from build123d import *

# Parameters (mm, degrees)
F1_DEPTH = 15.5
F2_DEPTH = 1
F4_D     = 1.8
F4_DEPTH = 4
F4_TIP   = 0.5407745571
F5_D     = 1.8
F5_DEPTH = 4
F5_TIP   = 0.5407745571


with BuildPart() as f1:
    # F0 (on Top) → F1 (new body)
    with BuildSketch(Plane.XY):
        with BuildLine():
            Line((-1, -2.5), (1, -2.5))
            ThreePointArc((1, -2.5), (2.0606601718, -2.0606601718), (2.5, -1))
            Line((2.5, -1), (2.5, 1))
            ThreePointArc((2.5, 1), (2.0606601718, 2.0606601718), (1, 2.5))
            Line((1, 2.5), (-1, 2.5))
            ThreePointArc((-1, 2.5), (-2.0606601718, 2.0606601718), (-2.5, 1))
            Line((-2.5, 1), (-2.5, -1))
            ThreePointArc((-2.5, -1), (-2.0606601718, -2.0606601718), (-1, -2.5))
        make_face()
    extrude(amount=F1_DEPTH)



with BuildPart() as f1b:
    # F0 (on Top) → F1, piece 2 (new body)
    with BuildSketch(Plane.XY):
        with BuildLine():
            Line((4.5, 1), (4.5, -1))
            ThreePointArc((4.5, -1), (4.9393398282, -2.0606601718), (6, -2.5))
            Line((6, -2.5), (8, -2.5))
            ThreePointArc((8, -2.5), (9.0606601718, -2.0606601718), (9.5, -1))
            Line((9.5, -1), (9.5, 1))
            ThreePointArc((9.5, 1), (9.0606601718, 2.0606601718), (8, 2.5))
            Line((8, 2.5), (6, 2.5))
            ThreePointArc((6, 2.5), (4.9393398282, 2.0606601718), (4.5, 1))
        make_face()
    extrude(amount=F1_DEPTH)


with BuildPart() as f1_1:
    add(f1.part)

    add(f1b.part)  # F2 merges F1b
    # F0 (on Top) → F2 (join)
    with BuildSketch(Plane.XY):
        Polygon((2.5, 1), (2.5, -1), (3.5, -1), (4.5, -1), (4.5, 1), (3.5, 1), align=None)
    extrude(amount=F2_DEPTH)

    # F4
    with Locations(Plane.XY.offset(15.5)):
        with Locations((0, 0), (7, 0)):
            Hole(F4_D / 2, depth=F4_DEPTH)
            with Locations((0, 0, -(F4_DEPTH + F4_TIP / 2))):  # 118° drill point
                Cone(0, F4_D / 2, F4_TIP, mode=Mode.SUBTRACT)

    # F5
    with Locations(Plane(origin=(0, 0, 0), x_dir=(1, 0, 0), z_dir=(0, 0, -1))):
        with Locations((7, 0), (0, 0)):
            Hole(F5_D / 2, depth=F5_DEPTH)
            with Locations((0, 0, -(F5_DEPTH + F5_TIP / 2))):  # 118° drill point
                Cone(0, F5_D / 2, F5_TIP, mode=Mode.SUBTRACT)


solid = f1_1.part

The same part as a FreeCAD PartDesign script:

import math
import FreeCAD as App
import Part
import Sketcher

V = App.Vector


def add_polygon(sketch, points):
    """Adds a closed chain of lines whose ends are joined by coincident constraints."""
    first, n = sketch.GeometryCount, len(points)
    for a, b in zip(points, points[1:] + points[:1]):
        sketch.addGeometry(Part.LineSegment(App.Vector(*a, 0), App.Vector(*b, 0)), False)
    for i in range(n):
        sketch.addConstraint(Sketcher.Constraint("Coincident", first + i, 2, first + (i + 1) % n, 1))

doc = App.newDocument("Part")
body = doc.addObject("PartDesign::Body", "Body")

sketch1 = body.newObject("Sketcher::SketchObject", "Sketch")
sketch1.AttachmentSupport = (doc.getObject("XY_Plane"), [""])
sketch1.MapMode = "FlatFace"
sketch1.addGeometry([
    Part.LineSegment(V(-1, -2.5, 0), V(1, -2.5, 0)),
    Part.ArcOfCircle(Part.Circle(V(1, -1, 0), V(0, 0, 1), 1.5), math.radians(-90), math.radians(0)),
    Part.LineSegment(V(2.5, -1, 0), V(2.5, 1, 0)),
    Part.ArcOfCircle(Part.Circle(V(1, 1, 0), V(0, 0, 1), 1.5), math.radians(0), math.radians(90)),
    Part.LineSegment(V(1, 2.5, 0), V(-1, 2.5, 0)),
    Part.ArcOfCircle(Part.Circle(V(-1, 1, 0), V(0, 0, 1), 1.5), math.radians(90), math.radians(180)),
    Part.LineSegment(V(-2.5, 1, 0), V(-2.5, -1, 0)),
    Part.ArcOfCircle(Part.Circle(V(-1, -1, 0), V(0, 0, 1), 1.5), math.radians(180), math.radians(270)),
], False)
sketch1.addConstraint([
    Sketcher.Constraint("Tangent", 0, 2, 1, 1),
    Sketcher.Constraint("Tangent", 1, 2, 2, 1),
    Sketcher.Constraint("Tangent", 2, 2, 3, 1),
    Sketcher.Constraint("Tangent", 3, 2, 4, 1),
    Sketcher.Constraint("Tangent", 4, 2, 5, 1),
    Sketcher.Constraint("Tangent", 5, 2, 6, 1),
    Sketcher.Constraint("Tangent", 6, 2, 7, 1),
    Sketcher.Constraint("Tangent", 7, 2, 0, 1),
    Sketcher.Constraint("Horizontal", 0),
    Sketcher.Constraint("Vertical", 2),
    Sketcher.Constraint("Horizontal", 4),
    Sketcher.Constraint("Vertical", 6),
    Sketcher.Constraint("Equal", 1, 3),
    Sketcher.Constraint("Equal", 3, 5),
    Sketcher.Constraint("Equal", 5, 7),
    Sketcher.Constraint("Symmetric", 1, 3, 5, 3, -1, 1),
    Sketcher.Constraint("Equal", 4, 2),
    Sketcher.Constraint("Radius", 1, 1.5),
    Sketcher.Constraint("DistanceX", 0, 1, 0, 2, 2.0),
])
pad1 = body.newObject("PartDesign::Pad", "Pad")
pad1.Profile = sketch1
pad1.Length = 15.5
body2 = doc.addObject("PartDesign::Body", "Body001")

sketch2 = body2.newObject("Sketcher::SketchObject", "Sketch001")
sketch2.AttachmentSupport = (doc.getObject("XY_Plane001"), [""])
sketch2.MapMode = "FlatFace"
sketch2.addGeometry([
    Part.LineSegment(V(4.5, 1, 0), V(4.5, -1, 0)),
    Part.ArcOfCircle(Part.Circle(V(6, -1, 0), V(0, 0, 1), 1.5), math.radians(180), math.radians(270)),
    Part.LineSegment(V(6, -2.5, 0), V(8, -2.5, 0)),
    Part.ArcOfCircle(Part.Circle(V(8, -1, 0), V(0, 0, 1), 1.5), math.radians(-90), math.radians(0)),
    Part.LineSegment(V(9.5, -1, 0), V(9.5, 1, 0)),
    Part.ArcOfCircle(Part.Circle(V(8, 1, 0), V(0, 0, 1), 1.5), math.radians(0), math.radians(90)),
    Part.LineSegment(V(8, 2.5, 0), V(6, 2.5, 0)),
    Part.ArcOfCircle(Part.Circle(V(6, 1, 0), V(0, 0, 1), 1.5), math.radians(90), math.radians(180)),
], False)
sketch2.addConstraint([
    Sketcher.Constraint("Tangent", 0, 2, 1, 1),
    Sketcher.Constraint("Tangent", 1, 2, 2, 1),
    Sketcher.Constraint("Tangent", 2, 2, 3, 1),
    Sketcher.Constraint("Tangent", 3, 2, 4, 1),
    Sketcher.Constraint("Tangent", 4, 2, 5, 1),
    Sketcher.Constraint("Tangent", 5, 2, 6, 1),
    Sketcher.Constraint("Tangent", 6, 2, 7, 1),
    Sketcher.Constraint("Tangent", 7, 2, 0, 1),
    Sketcher.Constraint("Vertical", 0),
    Sketcher.Constraint("Horizontal", 2),
    Sketcher.Constraint("Vertical", 4),
    Sketcher.Constraint("Horizontal", 6),
    Sketcher.Constraint("Equal", 1, 3),
    Sketcher.Constraint("Equal", 3, 5),
    Sketcher.Constraint("Equal", 5, 7),
    Sketcher.Constraint("Equal", 6, 0),
    Sketcher.Constraint("Radius", 1, 1.5),
    Sketcher.Constraint("DistanceX", 2, 1, 2, 2, 2.0),
    Sketcher.Constraint("DistanceX", -1, 1, 1, 3, 6.0),
    Sketcher.Constraint("DistanceY", 1, 3, -1, 1, 1.0),
])
pad2 = body2.newObject("PartDesign::Pad", "Pad001")
pad2.Profile = sketch2
pad2.Length = 15.5
body.AllowCompound = True
doc.recompute()

boolean = body.newObject("PartDesign::Boolean", "Boolean")
boolean.Type = "Fuse"
boolean.addObjects([body2])

sketch3 = body.newObject("Sketcher::SketchObject", "Sketch002")
sketch3.AttachmentSupport = (doc.getObject("XY_Plane"), [""])
sketch3.MapMode = "FlatFace"
add_polygon(sketch3, [(2.5, 1), (2.5, -1), (4.5, -1), (4.5, 1)])
sketch3.addConstraint([
    Sketcher.Constraint("Vertical", 0),
    Sketcher.Constraint("Horizontal", 1),
    Sketcher.Constraint("Vertical", 2),
    Sketcher.Constraint("Horizontal", 3),
    Sketcher.Constraint("Equal", 3, 0),
    Sketcher.Constraint("DistanceX", 1, 1, 1, 2, 2.0),
    Sketcher.Constraint("DistanceY", 0, 2, -1, 1, 1.0),
    Sketcher.Constraint("DistanceX", -1, 1, 0, 2, 2.5),
])
pad3 = body.newObject("PartDesign::Pad", "Pad002")
pad3.Profile = sketch3
pad3.Length = 1

sketch4 = body.newObject("Sketcher::SketchObject", "Sketch003")
sketch4.AttachmentSupport = (doc.getObject("XY_Plane"), [""])
sketch4.MapMode = "FlatFace"
sketch4.AttachmentOffset = App.Placement(V(0, 0, 15.5), App.Rotation())
sketch4.addGeometry([
    Part.Circle(V(0, 0, 0), V(0, 0, 1), 0.9),
    Part.Circle(V(7, 0, 0), V(0, 0, 1), 0.9),
], False)
sketch4.addConstraint([
    Sketcher.Constraint("Coincident", 0, 3, -1, 1),
    Sketcher.Constraint("Equal", 0, 1),
    Sketcher.Constraint("PointOnObject", 1, 3, -1),
    Sketcher.Constraint("Diameter", 0, 1.8),
    Sketcher.Constraint("DistanceX", -1, 1, 1, 3, 7.0),
])
doc.recompute()
hole = body.newObject("PartDesign::Hole", "Hole")
hole.Profile = sketch4
hole.ThreadType = "None"
hole.Diameter = 1.8
hole.DepthType = "Dimension"
hole.Depth = 4
hole.DrillPoint = "Angled"
hole.DrillPointAngle = 118

sketch5 = body.newObject("Sketcher::SketchObject", "Sketch004")
sketch5.AttachmentSupport = (doc.getObject("XY_Plane"), [""])
sketch5.MapMode = "FlatFace"
sketch5.addGeometry([
    Part.Circle(V(7, 0, 0), V(0, 0, 1), 0.9),
    Part.Circle(V(0, 0, 0), V(0, 0, 1), 0.9),
], False)
sketch5.addConstraint([
    Sketcher.Constraint("Coincident", 1, 3, -1, 1),
    Sketcher.Constraint("Equal", 0, 1),
    Sketcher.Constraint("PointOnObject", 0, 3, -1),
    Sketcher.Constraint("Diameter", 0, 1.8),
    Sketcher.Constraint("DistanceX", -1, 1, 0, 3, 7.0),
])
doc.recompute()
hole2 = body.newObject("PartDesign::Hole", "Hole001")
hole2.Profile = sketch5
hole2.ThreadType = "None"
hole2.Diameter = 1.8
hole2.DepthType = "Dimension"
hole2.Depth = 4
hole2.DrillPoint = "Angled"
hole2.DrillPointAngle = 118
hole2.Reversed = True

doc.recompute()
